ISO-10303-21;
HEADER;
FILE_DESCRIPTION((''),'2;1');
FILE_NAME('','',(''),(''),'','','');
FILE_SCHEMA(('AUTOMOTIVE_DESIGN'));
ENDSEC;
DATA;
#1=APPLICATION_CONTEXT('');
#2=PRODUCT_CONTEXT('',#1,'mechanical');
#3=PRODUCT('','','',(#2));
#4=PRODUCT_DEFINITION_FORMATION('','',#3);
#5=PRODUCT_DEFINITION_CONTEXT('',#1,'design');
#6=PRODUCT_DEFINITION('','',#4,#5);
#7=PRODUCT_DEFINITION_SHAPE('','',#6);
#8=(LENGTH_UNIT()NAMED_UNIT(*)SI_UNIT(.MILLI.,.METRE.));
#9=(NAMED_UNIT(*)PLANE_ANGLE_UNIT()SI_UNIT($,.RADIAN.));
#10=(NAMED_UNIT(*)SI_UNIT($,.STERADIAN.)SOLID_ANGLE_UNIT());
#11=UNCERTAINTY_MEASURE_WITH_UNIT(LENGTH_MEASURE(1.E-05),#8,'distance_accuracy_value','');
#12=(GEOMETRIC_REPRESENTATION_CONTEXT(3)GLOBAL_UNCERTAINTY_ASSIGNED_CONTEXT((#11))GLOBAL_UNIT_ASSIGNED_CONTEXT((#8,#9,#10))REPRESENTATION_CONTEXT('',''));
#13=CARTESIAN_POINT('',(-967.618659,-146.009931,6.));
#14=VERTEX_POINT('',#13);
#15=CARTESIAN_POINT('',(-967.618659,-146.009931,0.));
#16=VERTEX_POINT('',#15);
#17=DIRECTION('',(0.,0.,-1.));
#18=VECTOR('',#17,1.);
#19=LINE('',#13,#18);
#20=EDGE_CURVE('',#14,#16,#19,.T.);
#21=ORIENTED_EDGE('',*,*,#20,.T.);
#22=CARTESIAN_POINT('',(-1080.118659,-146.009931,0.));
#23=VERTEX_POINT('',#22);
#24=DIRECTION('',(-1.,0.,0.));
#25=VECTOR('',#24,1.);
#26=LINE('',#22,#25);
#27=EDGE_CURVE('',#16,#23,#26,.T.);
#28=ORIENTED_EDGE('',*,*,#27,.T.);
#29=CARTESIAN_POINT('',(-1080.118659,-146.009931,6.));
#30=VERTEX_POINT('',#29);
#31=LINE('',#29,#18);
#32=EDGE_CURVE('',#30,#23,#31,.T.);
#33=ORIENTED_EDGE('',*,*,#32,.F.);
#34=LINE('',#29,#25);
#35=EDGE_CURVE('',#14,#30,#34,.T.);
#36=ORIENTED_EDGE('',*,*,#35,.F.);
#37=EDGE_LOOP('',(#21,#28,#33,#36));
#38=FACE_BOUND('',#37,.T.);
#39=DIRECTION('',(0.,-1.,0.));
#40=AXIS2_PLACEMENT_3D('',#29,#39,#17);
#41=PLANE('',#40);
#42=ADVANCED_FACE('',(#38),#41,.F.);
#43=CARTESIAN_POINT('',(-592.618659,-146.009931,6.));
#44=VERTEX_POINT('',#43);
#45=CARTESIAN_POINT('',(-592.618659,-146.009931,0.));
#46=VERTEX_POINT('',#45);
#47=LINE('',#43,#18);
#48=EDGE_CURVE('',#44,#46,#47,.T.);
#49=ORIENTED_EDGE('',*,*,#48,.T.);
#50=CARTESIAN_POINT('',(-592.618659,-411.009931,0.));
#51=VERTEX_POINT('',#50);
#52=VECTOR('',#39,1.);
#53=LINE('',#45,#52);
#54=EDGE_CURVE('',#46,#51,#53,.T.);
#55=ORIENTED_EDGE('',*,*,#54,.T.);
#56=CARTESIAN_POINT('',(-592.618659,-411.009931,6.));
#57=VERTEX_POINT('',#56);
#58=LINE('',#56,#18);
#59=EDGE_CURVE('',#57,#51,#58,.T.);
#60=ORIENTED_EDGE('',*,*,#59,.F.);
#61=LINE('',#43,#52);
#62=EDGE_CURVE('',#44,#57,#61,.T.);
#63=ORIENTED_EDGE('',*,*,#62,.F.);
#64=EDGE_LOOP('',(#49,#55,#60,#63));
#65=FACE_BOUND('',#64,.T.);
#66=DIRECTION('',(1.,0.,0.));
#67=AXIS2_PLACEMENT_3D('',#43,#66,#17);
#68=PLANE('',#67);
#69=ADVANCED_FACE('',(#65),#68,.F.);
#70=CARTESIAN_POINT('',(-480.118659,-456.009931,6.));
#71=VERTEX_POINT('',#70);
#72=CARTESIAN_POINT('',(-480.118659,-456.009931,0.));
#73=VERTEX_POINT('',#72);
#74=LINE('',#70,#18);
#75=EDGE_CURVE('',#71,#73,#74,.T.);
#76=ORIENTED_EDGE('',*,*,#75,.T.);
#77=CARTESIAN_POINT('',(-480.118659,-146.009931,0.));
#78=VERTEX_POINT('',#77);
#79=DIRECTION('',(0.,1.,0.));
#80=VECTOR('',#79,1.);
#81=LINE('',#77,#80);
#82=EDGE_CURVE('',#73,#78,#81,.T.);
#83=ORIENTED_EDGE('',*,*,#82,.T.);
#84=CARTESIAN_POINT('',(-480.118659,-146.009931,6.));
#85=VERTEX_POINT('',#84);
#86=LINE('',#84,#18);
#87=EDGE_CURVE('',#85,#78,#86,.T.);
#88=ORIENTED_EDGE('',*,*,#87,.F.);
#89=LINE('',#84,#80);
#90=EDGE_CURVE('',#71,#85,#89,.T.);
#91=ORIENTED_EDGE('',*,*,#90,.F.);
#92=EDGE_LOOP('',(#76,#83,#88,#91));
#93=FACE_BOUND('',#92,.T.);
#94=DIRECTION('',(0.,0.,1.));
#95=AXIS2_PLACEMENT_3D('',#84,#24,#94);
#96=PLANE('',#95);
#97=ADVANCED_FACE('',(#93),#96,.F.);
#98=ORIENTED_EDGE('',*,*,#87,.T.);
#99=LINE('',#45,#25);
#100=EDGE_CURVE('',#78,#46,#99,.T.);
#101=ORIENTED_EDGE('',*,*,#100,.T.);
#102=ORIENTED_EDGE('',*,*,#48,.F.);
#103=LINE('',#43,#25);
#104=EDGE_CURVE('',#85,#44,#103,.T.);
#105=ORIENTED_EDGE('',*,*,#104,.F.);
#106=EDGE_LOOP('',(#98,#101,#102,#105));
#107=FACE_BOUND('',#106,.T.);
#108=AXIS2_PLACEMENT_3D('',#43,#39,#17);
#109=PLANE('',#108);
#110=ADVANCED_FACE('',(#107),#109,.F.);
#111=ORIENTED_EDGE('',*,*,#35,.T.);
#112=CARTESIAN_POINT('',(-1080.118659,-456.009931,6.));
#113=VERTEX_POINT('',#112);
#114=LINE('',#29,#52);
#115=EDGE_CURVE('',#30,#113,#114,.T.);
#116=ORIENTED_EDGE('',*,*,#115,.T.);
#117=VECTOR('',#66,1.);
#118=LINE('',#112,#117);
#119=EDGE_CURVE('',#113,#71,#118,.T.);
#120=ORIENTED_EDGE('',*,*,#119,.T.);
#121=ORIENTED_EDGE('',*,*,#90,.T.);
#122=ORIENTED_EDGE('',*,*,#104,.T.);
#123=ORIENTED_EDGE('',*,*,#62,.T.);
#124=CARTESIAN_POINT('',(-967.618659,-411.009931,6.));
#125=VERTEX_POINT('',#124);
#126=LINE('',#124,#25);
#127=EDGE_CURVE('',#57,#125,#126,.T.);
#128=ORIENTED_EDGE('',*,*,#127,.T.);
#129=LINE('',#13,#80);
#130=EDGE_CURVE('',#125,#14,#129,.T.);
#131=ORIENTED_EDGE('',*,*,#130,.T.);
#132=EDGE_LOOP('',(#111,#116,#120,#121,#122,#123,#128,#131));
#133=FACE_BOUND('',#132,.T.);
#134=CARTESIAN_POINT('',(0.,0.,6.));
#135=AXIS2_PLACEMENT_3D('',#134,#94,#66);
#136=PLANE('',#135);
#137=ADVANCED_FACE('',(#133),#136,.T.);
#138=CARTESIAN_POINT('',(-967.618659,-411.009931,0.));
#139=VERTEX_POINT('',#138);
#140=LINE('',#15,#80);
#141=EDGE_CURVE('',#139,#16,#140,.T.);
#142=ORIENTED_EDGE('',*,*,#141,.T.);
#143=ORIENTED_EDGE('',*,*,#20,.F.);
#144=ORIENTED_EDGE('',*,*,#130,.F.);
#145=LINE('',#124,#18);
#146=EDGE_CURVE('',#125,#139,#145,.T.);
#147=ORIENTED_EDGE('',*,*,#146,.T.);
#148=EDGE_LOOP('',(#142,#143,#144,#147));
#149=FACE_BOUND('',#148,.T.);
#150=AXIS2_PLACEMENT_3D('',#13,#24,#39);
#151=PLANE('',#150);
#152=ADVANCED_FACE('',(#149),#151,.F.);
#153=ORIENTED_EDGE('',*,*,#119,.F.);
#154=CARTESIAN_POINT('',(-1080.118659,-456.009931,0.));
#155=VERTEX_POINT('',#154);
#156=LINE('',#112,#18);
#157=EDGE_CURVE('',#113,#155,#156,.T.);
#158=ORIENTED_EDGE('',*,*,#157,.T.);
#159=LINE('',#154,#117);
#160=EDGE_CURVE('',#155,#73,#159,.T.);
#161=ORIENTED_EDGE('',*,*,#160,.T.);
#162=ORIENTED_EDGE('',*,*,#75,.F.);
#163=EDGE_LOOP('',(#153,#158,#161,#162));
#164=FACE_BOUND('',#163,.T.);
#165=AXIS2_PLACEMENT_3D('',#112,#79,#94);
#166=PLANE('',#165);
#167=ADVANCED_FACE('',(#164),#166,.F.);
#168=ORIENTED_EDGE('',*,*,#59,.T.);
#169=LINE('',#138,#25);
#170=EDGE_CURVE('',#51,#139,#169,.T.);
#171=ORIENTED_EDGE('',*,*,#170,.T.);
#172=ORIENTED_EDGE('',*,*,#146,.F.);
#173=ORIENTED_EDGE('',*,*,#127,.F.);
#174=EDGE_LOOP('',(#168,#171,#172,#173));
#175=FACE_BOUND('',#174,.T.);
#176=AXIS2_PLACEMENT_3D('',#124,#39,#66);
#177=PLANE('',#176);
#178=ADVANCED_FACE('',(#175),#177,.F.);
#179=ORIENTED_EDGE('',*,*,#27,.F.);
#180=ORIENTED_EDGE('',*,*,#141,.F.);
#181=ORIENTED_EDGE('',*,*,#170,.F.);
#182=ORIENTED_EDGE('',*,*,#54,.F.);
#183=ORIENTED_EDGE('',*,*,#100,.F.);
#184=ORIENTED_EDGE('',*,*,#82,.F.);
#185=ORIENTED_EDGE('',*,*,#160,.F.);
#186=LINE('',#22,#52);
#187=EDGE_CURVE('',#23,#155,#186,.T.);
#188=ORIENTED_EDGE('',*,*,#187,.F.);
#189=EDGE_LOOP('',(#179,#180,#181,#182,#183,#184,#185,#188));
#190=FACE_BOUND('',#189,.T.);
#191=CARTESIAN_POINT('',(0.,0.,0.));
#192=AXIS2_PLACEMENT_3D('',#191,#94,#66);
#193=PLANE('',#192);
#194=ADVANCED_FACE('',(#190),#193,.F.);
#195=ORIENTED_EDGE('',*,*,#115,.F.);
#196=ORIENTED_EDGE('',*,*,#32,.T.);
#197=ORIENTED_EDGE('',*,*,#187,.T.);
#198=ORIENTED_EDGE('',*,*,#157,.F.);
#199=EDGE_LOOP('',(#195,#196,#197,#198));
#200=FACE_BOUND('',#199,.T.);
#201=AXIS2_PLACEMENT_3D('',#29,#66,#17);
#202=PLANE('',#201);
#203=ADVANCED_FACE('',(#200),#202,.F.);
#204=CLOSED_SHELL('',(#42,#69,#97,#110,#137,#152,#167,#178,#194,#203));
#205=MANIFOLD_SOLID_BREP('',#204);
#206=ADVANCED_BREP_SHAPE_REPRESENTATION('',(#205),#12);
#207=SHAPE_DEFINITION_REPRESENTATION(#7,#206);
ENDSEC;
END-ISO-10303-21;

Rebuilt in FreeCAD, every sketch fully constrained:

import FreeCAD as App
import Part
import Sketcher

V = App.Vector
Q = App.Units.Quantity


def add_polygon(sketch, points):
    """Adds a closed chain of lines whose ends are joined by coincident constraints."""
    first, n = sketch.GeometryCount, len(points)
    for a, b in zip(points, points[1:] + points[:1]):
        sketch.addGeometry(Part.LineSegment(App.Vector(*a, 0), App.Vector(*b, 0)), False)
    for i in range(n):
        sketch.addConstraint(Sketcher.Constraint("Coincident", first + i, 2, first + (i + 1) % n, 1))

doc = App.newDocument("Part")
body = doc.addObject("PartDesign::Body", "Body")

# Sketch on XY plane
sketch1 = body.newObject("Sketcher::SketchObject", "Sketch")
sketch1.AttachmentSupport = (doc.getObject("XY_Plane"), [""])
sketch1.MapMode = "FlatFace"
add_polygon(sketch1, [(-480, -146), (-593, -146), (-593, -411), (-968, -411), (-968, -146), (-1080, -146), (-1080, -456), (-480, -456)])  # lines 0-7
sketch1.addConstraint(Sketcher.Constraint("Horizontal", 0))
sketch1.addConstraint(Sketcher.Constraint("Vertical", 1))
sketch1.addConstraint(Sketcher.Constraint("Horizontal", 2))
sketch1.addConstraint(Sketcher.Constraint("Vertical", 3))
sketch1.addConstraint(Sketcher.Constraint("Horizontal", 4))
sketch1.addConstraint(Sketcher.Constraint("Vertical", 5))
sketch1.addConstraint(Sketcher.Constraint("Horizontal", 6))
sketch1.addConstraint(Sketcher.Constraint("Vertical", 7))
sketch1.addConstraint(Sketcher.Constraint("Horizontal", 0, 2, 3, 2))
sketch1.addConstraint(Sketcher.Constraint("Equal", 0, 4))
sketch1.addConstraint(Sketcher.Constraint("DistanceX", 2, 2, 2, 1, Q("375 mm")))
sketch1.addConstraint(Sketcher.Constraint("DistanceX", 6, 1, 6, 2, Q("600 mm")))
sketch1.addConstraint(Sketcher.Constraint("DistanceY", 1, 2, 1, 1, Q("265 mm")))
sketch1.addConstraint(Sketcher.Constraint("DistanceY", 5, 2, 5, 1, Q("310 mm")))
sketch1.addConstraint(Sketcher.Constraint("DistanceX", 0, 2, -1, 1, Q("592.618659 mm")))
sketch1.addConstraint(Sketcher.Constraint("DistanceY", 0, 2, -1, 1, Q("146.009931 mm")))
pad1 = body.newObject("PartDesign::Pad", "Pad")
pad1.Profile = sketch1
pad1.Length = 6

doc.recompute()
